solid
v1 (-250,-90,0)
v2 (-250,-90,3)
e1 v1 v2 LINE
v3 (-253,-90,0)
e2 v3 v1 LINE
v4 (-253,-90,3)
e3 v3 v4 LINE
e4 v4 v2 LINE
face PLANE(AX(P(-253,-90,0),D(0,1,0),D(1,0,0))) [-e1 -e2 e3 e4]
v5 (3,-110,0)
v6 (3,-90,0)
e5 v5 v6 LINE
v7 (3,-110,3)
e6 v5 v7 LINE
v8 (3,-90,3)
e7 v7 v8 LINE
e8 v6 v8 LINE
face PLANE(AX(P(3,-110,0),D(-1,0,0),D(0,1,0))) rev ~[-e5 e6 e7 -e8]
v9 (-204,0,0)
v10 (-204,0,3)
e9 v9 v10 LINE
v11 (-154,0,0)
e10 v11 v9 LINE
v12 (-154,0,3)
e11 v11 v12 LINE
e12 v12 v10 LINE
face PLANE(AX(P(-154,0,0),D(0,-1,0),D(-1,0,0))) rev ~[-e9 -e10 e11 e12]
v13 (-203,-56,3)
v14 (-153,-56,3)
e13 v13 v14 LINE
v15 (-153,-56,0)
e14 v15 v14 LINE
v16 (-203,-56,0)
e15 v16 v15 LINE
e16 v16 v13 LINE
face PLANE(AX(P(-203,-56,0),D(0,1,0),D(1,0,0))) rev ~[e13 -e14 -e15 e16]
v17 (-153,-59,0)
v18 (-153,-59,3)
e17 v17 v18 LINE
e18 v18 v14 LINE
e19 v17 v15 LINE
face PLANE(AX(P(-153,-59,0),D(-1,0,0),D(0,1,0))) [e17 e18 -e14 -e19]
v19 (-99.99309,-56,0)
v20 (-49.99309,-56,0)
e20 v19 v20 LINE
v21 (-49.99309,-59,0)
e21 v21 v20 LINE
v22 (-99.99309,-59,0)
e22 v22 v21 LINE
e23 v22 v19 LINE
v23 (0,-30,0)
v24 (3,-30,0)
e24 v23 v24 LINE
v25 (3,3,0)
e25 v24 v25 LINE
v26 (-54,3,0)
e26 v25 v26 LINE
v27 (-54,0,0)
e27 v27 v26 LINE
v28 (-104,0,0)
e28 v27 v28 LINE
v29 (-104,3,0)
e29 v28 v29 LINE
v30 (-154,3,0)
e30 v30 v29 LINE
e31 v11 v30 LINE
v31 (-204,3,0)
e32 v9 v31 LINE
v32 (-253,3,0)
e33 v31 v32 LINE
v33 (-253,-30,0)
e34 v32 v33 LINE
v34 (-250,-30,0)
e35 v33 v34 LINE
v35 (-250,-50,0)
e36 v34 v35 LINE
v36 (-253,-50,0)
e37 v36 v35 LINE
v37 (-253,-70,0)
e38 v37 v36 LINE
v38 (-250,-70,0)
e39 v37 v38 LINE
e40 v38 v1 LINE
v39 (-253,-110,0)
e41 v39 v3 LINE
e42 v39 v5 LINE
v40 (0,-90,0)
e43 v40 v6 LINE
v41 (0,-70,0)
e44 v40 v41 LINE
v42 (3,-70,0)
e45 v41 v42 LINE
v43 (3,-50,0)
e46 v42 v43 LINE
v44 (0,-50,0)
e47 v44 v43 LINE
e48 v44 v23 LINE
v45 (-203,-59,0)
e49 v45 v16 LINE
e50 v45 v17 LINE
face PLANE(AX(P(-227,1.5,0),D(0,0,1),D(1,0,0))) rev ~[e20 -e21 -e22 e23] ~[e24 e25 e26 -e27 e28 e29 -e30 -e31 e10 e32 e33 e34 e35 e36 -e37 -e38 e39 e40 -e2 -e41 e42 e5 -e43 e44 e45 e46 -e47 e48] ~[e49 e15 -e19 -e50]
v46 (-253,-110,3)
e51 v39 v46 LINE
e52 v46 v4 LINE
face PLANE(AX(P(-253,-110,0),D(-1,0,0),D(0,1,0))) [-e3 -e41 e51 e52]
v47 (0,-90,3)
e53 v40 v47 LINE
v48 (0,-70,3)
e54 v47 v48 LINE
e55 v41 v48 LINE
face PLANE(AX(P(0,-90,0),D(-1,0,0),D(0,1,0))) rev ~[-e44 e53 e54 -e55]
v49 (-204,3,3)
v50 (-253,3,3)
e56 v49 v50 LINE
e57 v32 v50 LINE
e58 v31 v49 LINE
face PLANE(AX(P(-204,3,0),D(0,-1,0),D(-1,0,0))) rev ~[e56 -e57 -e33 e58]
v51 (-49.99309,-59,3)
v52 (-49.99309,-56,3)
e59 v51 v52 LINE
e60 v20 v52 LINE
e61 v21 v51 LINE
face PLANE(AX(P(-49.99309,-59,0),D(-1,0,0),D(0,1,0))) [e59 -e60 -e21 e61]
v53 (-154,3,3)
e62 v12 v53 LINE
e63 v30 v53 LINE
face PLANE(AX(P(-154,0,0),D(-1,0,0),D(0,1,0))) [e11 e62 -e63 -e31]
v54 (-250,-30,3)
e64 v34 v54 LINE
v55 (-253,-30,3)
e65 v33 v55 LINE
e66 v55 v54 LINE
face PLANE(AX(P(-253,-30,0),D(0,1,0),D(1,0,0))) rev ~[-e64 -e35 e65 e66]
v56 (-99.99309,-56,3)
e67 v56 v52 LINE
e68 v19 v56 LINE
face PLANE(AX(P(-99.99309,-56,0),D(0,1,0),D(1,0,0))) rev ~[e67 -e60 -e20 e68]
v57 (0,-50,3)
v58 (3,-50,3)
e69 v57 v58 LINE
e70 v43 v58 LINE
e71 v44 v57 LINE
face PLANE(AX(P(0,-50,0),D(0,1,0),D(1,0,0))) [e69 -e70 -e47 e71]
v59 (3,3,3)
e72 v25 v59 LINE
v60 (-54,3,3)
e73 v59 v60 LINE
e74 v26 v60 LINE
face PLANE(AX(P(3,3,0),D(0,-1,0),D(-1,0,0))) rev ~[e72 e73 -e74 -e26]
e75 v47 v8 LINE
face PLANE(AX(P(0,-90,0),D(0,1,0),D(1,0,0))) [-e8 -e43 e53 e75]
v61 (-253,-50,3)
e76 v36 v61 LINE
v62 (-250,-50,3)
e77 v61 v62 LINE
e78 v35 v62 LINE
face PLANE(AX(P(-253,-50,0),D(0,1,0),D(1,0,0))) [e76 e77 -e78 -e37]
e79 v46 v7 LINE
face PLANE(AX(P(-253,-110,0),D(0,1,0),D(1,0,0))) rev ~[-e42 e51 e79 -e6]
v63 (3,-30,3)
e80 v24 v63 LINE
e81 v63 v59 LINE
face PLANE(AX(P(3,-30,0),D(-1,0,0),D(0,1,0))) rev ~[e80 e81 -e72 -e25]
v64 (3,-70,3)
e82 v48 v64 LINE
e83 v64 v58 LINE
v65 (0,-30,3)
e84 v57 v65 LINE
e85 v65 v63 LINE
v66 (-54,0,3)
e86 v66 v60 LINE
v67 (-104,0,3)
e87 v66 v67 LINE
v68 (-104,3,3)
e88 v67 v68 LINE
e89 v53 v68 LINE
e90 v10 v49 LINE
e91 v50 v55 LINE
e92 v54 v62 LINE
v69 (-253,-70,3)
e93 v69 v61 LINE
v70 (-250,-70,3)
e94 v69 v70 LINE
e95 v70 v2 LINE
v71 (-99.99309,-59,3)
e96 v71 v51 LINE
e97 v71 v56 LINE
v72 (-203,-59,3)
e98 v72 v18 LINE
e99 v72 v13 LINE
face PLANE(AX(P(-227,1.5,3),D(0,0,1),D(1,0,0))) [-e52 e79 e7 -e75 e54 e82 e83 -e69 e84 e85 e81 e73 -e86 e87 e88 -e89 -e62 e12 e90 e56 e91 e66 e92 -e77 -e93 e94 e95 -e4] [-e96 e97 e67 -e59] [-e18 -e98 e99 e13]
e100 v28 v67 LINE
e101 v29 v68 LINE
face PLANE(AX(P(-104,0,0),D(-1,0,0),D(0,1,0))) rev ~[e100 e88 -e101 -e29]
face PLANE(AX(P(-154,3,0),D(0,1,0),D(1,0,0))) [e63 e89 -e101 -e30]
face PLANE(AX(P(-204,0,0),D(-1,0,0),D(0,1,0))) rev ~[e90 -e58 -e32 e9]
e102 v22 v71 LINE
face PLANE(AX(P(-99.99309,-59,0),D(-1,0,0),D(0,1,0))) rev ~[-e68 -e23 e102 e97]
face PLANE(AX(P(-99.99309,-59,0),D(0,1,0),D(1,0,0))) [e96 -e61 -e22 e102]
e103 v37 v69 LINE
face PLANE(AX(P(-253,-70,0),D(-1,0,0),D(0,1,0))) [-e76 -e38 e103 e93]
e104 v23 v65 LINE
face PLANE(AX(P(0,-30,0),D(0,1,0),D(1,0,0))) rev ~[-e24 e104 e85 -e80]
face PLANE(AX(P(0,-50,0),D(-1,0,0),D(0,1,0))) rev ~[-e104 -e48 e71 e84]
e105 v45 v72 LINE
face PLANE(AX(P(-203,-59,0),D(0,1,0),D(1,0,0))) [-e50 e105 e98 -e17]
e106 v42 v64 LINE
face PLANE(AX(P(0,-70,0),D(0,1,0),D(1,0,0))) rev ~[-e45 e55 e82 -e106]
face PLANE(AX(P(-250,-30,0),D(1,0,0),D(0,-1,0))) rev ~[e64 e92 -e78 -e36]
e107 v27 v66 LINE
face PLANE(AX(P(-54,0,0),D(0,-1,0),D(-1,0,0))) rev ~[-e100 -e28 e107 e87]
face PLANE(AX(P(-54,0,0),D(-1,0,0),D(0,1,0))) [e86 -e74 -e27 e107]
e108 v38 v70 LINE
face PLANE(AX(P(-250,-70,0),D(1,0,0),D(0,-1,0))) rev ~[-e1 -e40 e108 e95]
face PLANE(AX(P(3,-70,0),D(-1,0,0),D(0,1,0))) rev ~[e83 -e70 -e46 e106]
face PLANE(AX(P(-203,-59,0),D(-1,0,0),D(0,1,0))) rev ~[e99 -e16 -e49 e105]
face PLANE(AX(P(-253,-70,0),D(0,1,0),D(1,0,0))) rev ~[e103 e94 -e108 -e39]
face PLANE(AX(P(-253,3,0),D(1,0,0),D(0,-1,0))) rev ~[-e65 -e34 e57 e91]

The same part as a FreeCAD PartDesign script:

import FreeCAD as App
import Part
import Sketcher

V = App.Vector
Q = App.Units.Quantity


def add_polygon(sketch, points):
    """Adds a closed chain of lines whose ends are joined by coincident constraints."""
    first, n = sketch.GeometryCount, len(points)
    for a, b in zip(points, points[1:] + points[:1]):
        sketch.addGeometry(Part.LineSegment(App.Vector(*a, 0), App.Vector(*b, 0)), False)
    for i in range(n):
        sketch.addConstraint(Sketcher.Constraint("Coincident", first + i, 2, first + (i + 1) % n, 1))

doc = App.newDocument("Part")
body = doc.addObject("PartDesign::Body", "Body")

sketch1 = doc.addObject("Sketcher::SketchObject", "Sketch")
body.addObject(sketch1)
sketch1.AttachmentSupport = (doc.XY_Plane, [""])
sketch1.MapMode = "FlatFace"
add_polygon(sketch1, [(-250, -30), (-250, -50), (-253, -50), (-253, -70), (-250, -70), (-250, -90), (-253, -90), (-253, -110), (3, -110), (3, -90), (0, -90), (0, -70), (3, -70), (3, -50), (0, -50), (0, -30), (3, -30), (3, 3), (-54, 3), (-54, 0), (-104, 0), (-104, 3), (-154, 3), (-154, 0), (-204, 0), (-204, 3), (-253, 3), (-253, -30)])
add_polygon(sketch1, [(-153, -59), (-203, -59), (-203, -56), (-153, -56)])
add_polygon(sketch1, [(-50, -59), (-100, -59), (-100, -56), (-50, -56)])
sketch1.addConstraint([
    Sketcher.Constraint("Vertical", 0),
    Sketcher.Constraint("Horizontal", 1),
    Sketcher.Constraint("Vertical", 2),
    Sketcher.Constraint("Horizontal", 3),
    Sketcher.Constraint("Vertical", 4),
    Sketcher.Constraint("Horizontal", 5),
    Sketcher.Constraint("Vertical", 6),
    Sketcher.Constraint("Horizontal", 7),
    Sketcher.Constraint("Vertical", 8),
    Sketcher.Constraint("Horizontal", 9),
    Sketcher.Constraint("Vertical", 10),
    Sketcher.Constraint("Horizontal", 11),
    Sketcher.Constraint("Vertical", 12),
    Sketcher.Constraint("Horizontal", 13),
    Sketcher.Constraint("Vertical", 14),
    Sketcher.Constraint("Horizontal", 15),
    Sketcher.Constraint("Vertical", 16),
    Sketcher.Constraint("Horizontal", 17),
    Sketcher.Constraint("Vertical", 18),
    Sketcher.Constraint("Horizontal", 19),
    Sketcher.Constraint("Vertical", 20),
    Sketcher.Constraint("Horizontal", 21),
    Sketcher.Constraint("Vertical", 22),
    Sketcher.Constraint("Horizontal", 23),
    Sketcher.Constraint("Vertical", 24),
    Sketcher.Constraint("Horizontal", 25),
    Sketcher.Constraint("Vertical", 26),
    Sketcher.Constraint("Horizontal", 27),
    Sketcher.Constraint("Horizontal", 28),
    Sketcher.Constraint("Vertical", 29),
    Sketcher.Constraint("Horizontal", 30),
    Sketcher.Constraint("Vertical", 31),
    Sketcher.Constraint("Horizontal", 32),
    Sketcher.Constraint("Vertical", 33),
    Sketcher.Constraint("Horizontal", 34),
    Sketcher.Constraint("Vertical", 35),
    Sketcher.Constraint("PointOnObject", 9, 2, -2),
    Sketcher.Constraint("PointOnObject", 13, 2, -2),
    Sketcher.Constraint("PointOnObject", 18, 2, -1),
    Sketcher.Constraint("PointOnObject", 22, 2, -1),
    Sketcher.Constraint("Horizontal", 5, 2, 8, 2),
    Sketcher.Constraint("Horizontal", 3, 2, 10, 2),
    Sketcher.Constraint("Horizontal", 1, 2, 12, 2),
    Sketcher.Constraint("Horizontal", 17, 2, 20, 2),
    Sketcher.Constraint("Horizontal", 21, 2, 24, 2),
    Sketcher.Constraint("Horizontal", 15, 2, 26, 2),
    Sketcher.Constraint("Horizontal", 31, 2, 32, 2),
    Sketcher.Constraint("Horizontal", 30, 2, 33, 2),
    Sketcher.Constraint("Vertical", 0, 2, 3, 2),
    Sketcher.Constraint("Vertical", 2, 2, 5, 2),
    Sketcher.Constraint("Vertical", 8, 2, 11, 2),
    Sketcher.Constraint("Vertical", 12, 2, 15, 2),
    Sketcher.Constraint("Vertical", 6, 2, 25, 2),
    Sketcher.Constraint("Equal", 5, 9),
    Sketcher.Constraint("Equal", 19, 21),
    Sketcher.Constraint("Equal", 21, 23),
    Sketcher.Constraint("Equal", 23, 28),
    Sketcher.Constraint("Equal", 30, 32),
    Sketcher.Constraint("Equal", 0, 2),
    Sketcher.Constraint("Equal", 2, 4),
    Sketcher.Constraint("Equal", 4, 6),
    Sketcher.Constraint("Equal", 27, 18),
    Sketcher.Constraint("Equal", 24, 29),
    Sketcher.Constraint("DistanceX", 1, 2, 1, 1, Q("3 mm")),
    Sketcher.Constraint("DistanceX", 7, 1, 7, 2, Q("256 mm")),
    Sketcher.Constraint("DistanceX", 17, 2, 17, 1, Q("57 mm")),
    Sketcher.Constraint("DistanceX", 19, 2, 19, 1, Q("50 mm")),
    Sketcher.Constraint("DistanceY", 0, 2, 0, 1, Q("20 mm")),
    Sketcher.Constraint("DistanceY", 16, 1, 16, 2, Q("33 mm")),
    Sketcher.Constraint("DistanceX", 28, 2, -1, 1, Q("203 mm")),
    Sketcher.Constraint("DistanceY", 28, 2, -1, 1, Q("59 mm")),
    Sketcher.Constraint("DistanceX", 32, 2, -1, 1, Q("99.99309 mm")),
])
pad1 = doc.addObject("PartDesign::Pad", "Pad")
body.addObject(pad1)
pad1.Profile = sketch1
pad1.Length = 3

doc.recompute()
